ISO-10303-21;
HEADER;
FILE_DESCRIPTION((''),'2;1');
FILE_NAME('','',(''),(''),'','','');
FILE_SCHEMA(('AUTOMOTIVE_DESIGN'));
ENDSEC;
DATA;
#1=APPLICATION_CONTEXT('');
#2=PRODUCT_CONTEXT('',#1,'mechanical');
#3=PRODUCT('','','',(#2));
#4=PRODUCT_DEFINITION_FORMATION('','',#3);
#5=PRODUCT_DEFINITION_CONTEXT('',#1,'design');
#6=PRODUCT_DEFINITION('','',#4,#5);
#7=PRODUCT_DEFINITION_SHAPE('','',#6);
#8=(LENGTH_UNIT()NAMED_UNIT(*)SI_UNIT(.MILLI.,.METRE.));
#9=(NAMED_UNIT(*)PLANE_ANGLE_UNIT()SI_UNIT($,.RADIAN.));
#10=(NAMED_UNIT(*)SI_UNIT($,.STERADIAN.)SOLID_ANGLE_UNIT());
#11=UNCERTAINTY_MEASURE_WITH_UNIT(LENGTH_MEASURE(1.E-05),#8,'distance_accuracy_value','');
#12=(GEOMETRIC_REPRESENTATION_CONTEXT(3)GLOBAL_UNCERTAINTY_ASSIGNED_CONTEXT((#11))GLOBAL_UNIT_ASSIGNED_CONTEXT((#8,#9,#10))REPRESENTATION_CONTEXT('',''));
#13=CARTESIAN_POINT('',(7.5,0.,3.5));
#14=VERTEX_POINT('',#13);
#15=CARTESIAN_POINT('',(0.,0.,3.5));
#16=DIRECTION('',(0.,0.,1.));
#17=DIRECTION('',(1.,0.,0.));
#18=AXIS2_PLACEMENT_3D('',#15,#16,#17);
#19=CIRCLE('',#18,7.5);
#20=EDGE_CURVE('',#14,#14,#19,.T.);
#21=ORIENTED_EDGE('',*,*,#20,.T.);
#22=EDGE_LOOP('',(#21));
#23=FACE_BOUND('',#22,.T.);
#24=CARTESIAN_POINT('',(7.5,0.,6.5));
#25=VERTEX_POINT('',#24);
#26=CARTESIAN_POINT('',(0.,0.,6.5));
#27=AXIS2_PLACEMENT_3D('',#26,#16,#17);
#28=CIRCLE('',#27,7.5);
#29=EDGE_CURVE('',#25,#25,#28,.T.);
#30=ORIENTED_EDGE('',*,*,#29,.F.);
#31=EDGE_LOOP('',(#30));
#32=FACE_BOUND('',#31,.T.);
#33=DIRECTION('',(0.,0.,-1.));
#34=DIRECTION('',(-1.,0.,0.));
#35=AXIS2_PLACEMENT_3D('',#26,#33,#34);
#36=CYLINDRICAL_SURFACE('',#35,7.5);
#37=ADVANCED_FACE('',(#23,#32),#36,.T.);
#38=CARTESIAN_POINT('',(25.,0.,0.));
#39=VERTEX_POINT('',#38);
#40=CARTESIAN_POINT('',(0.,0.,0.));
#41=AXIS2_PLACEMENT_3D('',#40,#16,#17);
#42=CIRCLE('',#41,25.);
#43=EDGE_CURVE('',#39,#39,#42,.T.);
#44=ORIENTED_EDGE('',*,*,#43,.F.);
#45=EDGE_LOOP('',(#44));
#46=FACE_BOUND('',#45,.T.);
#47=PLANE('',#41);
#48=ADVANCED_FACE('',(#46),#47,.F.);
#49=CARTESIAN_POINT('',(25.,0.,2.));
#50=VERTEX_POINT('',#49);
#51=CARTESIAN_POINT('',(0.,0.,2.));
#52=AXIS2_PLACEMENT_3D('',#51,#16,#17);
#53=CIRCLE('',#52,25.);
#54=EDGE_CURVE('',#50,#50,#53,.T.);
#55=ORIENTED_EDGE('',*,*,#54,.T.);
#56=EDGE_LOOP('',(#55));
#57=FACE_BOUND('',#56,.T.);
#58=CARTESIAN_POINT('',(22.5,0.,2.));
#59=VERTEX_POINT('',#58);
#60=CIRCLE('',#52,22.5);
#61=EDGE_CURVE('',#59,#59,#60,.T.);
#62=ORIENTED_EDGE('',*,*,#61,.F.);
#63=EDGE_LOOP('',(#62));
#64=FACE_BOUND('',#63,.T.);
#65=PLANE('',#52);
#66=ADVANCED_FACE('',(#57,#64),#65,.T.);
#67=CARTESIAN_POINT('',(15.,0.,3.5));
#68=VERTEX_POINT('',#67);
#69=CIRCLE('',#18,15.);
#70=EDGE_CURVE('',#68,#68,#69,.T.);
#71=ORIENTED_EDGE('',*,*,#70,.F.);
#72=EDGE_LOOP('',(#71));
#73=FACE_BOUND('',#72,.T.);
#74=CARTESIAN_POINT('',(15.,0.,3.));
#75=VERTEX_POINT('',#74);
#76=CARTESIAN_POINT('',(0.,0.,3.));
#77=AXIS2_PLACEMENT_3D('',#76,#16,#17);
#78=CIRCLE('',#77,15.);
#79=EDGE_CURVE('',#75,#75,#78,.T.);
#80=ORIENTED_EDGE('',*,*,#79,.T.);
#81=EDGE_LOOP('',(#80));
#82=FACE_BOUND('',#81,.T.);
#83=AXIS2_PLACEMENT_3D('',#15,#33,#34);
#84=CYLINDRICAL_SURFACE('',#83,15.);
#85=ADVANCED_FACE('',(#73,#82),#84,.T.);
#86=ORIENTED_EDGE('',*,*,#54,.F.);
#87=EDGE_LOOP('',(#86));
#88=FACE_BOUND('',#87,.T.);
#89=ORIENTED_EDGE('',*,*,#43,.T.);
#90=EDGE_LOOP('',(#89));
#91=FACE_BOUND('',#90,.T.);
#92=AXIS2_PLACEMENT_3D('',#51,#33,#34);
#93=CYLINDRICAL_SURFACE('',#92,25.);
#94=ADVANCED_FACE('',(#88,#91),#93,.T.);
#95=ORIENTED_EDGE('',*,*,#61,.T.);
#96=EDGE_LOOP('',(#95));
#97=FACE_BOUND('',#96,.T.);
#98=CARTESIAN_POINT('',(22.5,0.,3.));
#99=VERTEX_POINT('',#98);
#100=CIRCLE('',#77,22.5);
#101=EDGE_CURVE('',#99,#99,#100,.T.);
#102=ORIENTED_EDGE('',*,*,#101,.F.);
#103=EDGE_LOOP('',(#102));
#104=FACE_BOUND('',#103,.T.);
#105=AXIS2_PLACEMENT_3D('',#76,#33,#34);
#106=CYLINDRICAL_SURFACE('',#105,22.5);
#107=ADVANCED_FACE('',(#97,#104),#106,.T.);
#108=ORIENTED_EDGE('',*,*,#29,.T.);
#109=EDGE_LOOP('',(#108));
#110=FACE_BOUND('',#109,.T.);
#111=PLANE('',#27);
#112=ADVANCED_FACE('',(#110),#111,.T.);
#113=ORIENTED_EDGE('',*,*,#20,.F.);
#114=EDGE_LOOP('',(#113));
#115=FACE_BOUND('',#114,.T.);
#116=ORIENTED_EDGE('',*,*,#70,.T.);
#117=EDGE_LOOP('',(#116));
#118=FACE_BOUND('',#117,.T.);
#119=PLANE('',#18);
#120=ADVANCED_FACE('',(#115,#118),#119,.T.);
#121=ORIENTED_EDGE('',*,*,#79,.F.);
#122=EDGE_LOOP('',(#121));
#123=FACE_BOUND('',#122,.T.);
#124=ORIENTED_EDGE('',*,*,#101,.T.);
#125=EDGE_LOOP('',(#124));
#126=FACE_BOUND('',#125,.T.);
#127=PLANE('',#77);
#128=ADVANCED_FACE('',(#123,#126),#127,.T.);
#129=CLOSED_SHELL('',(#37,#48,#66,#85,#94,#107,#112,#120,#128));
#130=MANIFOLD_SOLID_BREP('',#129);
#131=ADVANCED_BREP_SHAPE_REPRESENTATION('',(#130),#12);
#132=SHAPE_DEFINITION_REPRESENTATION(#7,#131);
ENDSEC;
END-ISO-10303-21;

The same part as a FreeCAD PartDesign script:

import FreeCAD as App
import Part
import Sketcher
from FreeCAD import Vector

doc = App.newDocument("Part")
body = doc.addObject("PartDesign::Body", "Body")

# Sketch on XY plane
sketch1 = body.newObject("Sketcher::SketchObject", "Sketch")
sketch1.AttachmentSupport = (doc.getObject("XY_Plane"), [""])
sketch1.MapMode = "FlatFace"
sketch1.addGeometry(Part.Circle(Vector(0, 0, 0), Vector(0, 0, 1), 25), False)
sketch1.addConstraint([
    Sketcher.Constraint("Coincident", 0, 3, -1, 1),
    Sketcher.Constraint("Diameter", 0, 50.0),
])
pad1 = body.newObject("PartDesign::Pad", "Pad")
pad1.Profile = sketch1
pad1.Length = 2

# Sketch on XY plane
sketch2 = body.newObject("Sketcher::SketchObject", "Sketch001")
sketch2.AttachmentSupport = (doc.getObject("XY_Plane"), [""])
sketch2.MapMode = "FlatFace"
sketch2.AttachmentOffset = App.Placement(Vector(0, 0, 2), App.Rotation())
sketch2.addGeometry(Part.Circle(Vector(0, 0, 0), Vector(0, 0, 1), 22), False)
sketch2.addConstraint([
    Sketcher.Constraint("Coincident", 0, 3, -1, 1),
    Sketcher.Constraint("Diameter", 0, 45.0),
])
pad2 = body.newObject("PartDesign::Pad", "Pad001")
pad2.Profile = sketch2
pad2.Length = 1

# Sketch on XY plane
sketch3 = body.newObject("Sketcher::SketchObject", "Sketch002")
sketch3.AttachmentSupport = (doc.getObject("XY_Plane"), [""])
sketch3.MapMode = "FlatFace"
sketch3.AttachmentOffset = App.Placement(Vector(0, 0, 3), App.Rotation())
sketch3.addGeometry(Part.Circle(Vector(0, 0, 0), Vector(0, 0, 1), 15), False)
sketch3.addConstraint([
    Sketcher.Constraint("Coincident", 0, 3, -1, 1),
    Sketcher.Constraint("Diameter", 0, 30.0),
])
pad3 = body.newObject("PartDesign::Pad", "Pad002")
pad3.Profile = sketch3
pad3.Length = 0.5

# Sketch on XY plane
sketch4 = body.newObject("Sketcher::SketchObject", "Sketch003")
sketch4.AttachmentSupport = (doc.getObject("XY_Plane"), [""])
sketch4.MapMode = "FlatFace"
sketch4.AttachmentOffset = App.Placement(Vector(0, 0, 3.5), App.Rotation())
sketch4.addGeometry(Part.Circle(Vector(0, 0, 0), Vector(0, 0, 1), 8), False)
sketch4.addConstraint([
    Sketcher.Constraint("Coincident", 0, 3, -1, 1),
    Sketcher.Constraint("Diameter", 0, 15.0),
])
pad4 = body.newObject("PartDesign::Pad", "Pad003")
pad4.Profile = sketch4
pad4.Length = 3

doc.recompute()
